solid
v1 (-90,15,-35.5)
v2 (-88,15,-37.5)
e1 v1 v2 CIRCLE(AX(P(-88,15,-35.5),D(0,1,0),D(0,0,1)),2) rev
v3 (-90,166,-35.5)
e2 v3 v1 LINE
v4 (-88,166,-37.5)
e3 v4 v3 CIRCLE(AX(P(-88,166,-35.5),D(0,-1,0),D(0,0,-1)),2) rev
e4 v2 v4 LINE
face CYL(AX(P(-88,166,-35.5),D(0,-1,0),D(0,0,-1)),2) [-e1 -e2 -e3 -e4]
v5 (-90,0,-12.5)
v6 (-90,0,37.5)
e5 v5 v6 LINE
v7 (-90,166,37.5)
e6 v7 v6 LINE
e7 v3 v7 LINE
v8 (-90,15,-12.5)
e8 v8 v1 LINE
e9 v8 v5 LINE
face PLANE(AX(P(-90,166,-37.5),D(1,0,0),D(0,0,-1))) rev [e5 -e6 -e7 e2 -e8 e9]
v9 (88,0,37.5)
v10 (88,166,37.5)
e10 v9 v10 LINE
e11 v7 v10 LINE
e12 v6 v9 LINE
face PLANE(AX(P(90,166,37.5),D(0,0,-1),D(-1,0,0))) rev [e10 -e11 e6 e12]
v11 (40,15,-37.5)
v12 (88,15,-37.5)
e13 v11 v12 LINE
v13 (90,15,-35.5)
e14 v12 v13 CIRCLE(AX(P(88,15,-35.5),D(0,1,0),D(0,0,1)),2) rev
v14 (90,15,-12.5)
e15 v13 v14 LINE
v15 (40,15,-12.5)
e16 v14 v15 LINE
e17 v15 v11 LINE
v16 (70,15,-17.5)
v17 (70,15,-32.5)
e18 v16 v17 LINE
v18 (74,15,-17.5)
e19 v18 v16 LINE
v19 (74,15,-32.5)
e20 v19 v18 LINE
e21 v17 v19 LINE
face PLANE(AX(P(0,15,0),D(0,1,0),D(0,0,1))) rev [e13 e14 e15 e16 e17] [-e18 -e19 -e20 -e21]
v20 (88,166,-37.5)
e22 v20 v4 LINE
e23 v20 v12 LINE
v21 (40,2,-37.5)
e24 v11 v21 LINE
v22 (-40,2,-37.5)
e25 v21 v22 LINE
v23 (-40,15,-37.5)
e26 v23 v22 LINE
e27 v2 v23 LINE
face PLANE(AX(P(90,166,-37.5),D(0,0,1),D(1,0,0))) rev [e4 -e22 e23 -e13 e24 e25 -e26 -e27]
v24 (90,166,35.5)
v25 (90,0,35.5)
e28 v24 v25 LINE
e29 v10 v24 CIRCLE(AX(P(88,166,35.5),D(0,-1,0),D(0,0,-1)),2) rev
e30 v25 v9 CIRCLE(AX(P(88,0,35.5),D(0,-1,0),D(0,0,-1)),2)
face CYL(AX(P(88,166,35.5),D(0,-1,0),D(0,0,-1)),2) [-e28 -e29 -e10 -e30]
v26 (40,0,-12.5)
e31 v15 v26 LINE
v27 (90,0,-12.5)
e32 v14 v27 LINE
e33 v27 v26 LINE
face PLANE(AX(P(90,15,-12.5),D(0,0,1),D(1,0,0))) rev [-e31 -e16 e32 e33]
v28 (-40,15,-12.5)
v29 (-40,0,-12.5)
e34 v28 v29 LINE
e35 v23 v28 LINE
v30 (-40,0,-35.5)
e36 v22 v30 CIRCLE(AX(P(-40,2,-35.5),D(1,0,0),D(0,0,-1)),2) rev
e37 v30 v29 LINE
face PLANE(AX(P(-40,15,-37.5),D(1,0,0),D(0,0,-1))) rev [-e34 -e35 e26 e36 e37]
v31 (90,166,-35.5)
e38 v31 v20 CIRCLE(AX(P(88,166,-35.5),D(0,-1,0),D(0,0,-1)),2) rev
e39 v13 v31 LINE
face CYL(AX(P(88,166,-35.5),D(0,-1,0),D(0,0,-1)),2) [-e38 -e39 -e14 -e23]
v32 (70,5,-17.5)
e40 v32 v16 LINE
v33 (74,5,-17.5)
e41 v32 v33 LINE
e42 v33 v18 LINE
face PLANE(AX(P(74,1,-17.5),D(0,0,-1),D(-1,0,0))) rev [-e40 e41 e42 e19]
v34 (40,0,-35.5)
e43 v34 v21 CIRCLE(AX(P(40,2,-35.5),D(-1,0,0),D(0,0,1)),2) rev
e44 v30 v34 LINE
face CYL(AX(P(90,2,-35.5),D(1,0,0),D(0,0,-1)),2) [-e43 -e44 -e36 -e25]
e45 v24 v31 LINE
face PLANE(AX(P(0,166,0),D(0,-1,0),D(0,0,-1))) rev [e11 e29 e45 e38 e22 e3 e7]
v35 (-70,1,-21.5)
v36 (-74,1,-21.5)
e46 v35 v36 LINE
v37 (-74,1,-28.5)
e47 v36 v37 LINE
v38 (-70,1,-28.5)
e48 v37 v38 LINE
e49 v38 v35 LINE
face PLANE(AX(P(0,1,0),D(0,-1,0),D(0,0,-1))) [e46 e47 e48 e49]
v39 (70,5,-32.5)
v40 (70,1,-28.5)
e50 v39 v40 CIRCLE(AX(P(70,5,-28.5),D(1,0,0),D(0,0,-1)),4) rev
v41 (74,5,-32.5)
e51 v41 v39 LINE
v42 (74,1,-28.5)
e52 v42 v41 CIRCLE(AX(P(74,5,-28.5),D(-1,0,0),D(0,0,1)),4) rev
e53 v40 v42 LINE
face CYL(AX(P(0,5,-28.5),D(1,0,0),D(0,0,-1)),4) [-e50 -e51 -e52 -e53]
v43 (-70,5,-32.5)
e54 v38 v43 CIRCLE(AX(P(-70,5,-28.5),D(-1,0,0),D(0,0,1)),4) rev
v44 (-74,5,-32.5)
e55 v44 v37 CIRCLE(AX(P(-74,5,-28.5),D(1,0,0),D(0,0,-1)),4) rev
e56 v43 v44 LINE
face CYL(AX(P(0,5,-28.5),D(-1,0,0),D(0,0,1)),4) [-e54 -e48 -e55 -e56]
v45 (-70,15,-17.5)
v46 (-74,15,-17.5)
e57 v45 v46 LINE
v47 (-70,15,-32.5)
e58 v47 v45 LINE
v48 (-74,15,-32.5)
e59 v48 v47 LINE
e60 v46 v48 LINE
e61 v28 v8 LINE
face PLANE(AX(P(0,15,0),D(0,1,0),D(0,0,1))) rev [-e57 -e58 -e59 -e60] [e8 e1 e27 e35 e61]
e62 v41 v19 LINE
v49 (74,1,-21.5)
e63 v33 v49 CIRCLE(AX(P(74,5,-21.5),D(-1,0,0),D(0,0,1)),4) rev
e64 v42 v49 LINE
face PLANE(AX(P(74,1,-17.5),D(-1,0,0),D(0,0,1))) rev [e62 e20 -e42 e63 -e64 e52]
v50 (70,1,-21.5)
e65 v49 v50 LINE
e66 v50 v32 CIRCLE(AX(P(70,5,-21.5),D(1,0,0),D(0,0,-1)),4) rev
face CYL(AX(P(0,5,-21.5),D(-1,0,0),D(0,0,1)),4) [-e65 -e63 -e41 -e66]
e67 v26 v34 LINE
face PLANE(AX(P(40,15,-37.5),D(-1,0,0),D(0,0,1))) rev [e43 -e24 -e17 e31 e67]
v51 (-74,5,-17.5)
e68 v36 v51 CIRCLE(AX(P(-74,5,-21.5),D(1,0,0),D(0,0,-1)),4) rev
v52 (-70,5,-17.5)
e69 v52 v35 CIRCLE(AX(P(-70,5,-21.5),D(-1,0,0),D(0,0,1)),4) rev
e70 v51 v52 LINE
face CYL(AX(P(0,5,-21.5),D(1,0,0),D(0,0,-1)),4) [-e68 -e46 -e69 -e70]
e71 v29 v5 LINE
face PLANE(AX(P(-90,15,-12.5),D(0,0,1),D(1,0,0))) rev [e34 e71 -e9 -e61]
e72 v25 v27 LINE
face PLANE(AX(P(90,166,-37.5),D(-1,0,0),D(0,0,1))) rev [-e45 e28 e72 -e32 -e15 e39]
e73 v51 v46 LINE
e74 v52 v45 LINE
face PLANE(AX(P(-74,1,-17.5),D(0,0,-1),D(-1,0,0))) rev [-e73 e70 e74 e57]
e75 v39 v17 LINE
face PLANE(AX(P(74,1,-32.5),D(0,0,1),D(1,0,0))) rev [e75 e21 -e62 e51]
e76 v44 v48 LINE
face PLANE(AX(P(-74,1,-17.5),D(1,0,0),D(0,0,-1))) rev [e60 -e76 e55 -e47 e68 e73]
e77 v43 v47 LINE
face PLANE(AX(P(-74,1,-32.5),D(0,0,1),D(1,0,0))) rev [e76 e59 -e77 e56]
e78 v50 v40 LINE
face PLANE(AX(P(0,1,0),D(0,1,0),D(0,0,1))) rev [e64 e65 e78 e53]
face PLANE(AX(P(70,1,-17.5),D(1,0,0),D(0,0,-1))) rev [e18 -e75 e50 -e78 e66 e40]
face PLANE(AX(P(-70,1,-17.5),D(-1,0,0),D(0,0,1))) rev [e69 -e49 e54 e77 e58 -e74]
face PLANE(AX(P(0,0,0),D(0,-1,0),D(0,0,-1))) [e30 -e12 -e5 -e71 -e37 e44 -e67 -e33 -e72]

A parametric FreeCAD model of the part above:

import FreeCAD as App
import Part
import Sketcher
Q = App.Units.Quantity


def edges_at(feature, points):
    """Names of the edges that pass closest to the given points."""
    edges = feature.Shape.Edges
    near = lambda p: min(range(len(edges)), key=lambda i: edges[i].distToShape(Part.Vertex(*p))[0])
    return sorted({f"Edge{near(p) + 1}" for p in points})

doc = App.newDocument("Part")
body = doc.addObject("PartDesign::Body", "Body")

# Sketch on XZ plane
sketch1 = body.newObject("Sketcher::SketchObject", "Sketch")
sketch1.AttachmentSupport = (doc.getObject("XZ_Plane"), [""])
sketch1.MapMode = "FlatFace"
sketch1.addGeometry(Part.LineSegment(App.Vector(-90, -38, 0), App.Vector(-90, 38, 0)), False)
sketch1.addGeometry(Part.LineSegment(App.Vector(-90, 38, 0), App.Vector(90, 38, 0)), False)
sketch1.addGeometry(Part.LineSegment(App.Vector(90, 38, 0), App.Vector(90, -38, 0)), False)
sketch1.addGeometry(Part.LineSegment(App.Vector(90, -38, 0), App.Vector(-90, -38, 0)), False)
sketch1.addConstraint(Sketcher.Constraint("Coincident", 0, 2, 1, 1))
sketch1.addConstraint(Sketcher.Constraint("Coincident", 1, 2, 2, 1))
sketch1.addConstraint(Sketcher.Constraint("Coincident", 2, 2, 3, 1))
sketch1.addConstraint(Sketcher.Constraint("Coincident", 3, 2, 0, 1))
sketch1.addConstraint(Sketcher.Constraint("Vertical", 0))
sketch1.addConstraint(Sketcher.Constraint("Horizontal", 1))
sketch1.addConstraint(Sketcher.Constraint("Vertical", 2))
sketch1.addConstraint(Sketcher.Constraint("Horizontal", 3))
sketch1.addConstraint(Sketcher.Constraint("Symmetric", 0, 2, 2, 2, -1, 1))
sketch1.addConstraint(Sketcher.Constraint("DistanceX", 1, 1, 1, 2, Q("180 mm")))
sketch1.addConstraint(Sketcher.Constraint("DistanceY", 0, 1, 0, 2, Q("75 mm")))
pad1 = body.newObject("PartDesign::Pad", "Pad")
pad1.Profile = sketch1
pad1.Length = 166
pad1.Reversed = True

# Sketch on XZ plane
sketch2 = body.newObject("Sketcher::SketchObject", "Sketch001")
sketch2.AttachmentSupport = (doc.getObject("XZ_Plane"), [""])
sketch2.MapMode = "FlatFace"
sketch2.addGeometry(Part.LineSegment(App.Vector(-90, -12, 0), App.Vector(-90, -38, 0)), False)
sketch2.addGeometry(Part.LineSegment(App.Vector(-90, -38, 0), App.Vector(-40, -38, 0)), False)
sketch2.addGeometry(Part.LineSegment(App.Vector(-40, -38, 0), App.Vector(-40, -12, 0)), False)
sketch2.addGeometry(Part.LineSegment(App.Vector(-40, -12, 0), App.Vector(-90, -12, 0)), False)
sketch2.addGeometry(Part.LineSegment(App.Vector(40, -12, 0), App.Vector(40, -38, 0)), False)
sketch2.addGeometry(Part.LineSegment(App.Vector(40, -38, 0), App.Vector(90, -38, 0)), False)
sketch2.addGeometry(Part.LineSegment(App.Vector(90, -38, 0), App.Vector(90, -12, 0)), False)
sketch2.addGeometry(Part.LineSegment(App.Vector(90, -12, 0), App.Vector(40, -12, 0)), False)
sketch2.addConstraint(Sketcher.Constraint("Coincident", 0, 2, 1, 1))
sketch2.addConstraint(Sketcher.Constraint("Coincident", 1, 2, 2, 1))
sketch2.addConstraint(Sketcher.Constraint("Coincident", 2, 2, 3, 1))
sketch2.addConstraint(Sketcher.Constraint("Coincident", 3, 2, 0, 1))
sketch2.addConstraint(Sketcher.Constraint("Coincident", 4, 2, 5, 1))
sketch2.addConstraint(Sketcher.Constraint("Coincident", 5, 2, 6, 1))
sketch2.addConstraint(Sketcher.Constraint("Coincident", 6, 2, 7, 1))
sketch2.addConstraint(Sketcher.Constraint("Coincident", 7, 2, 4, 1))
sketch2.addConstraint(Sketcher.Constraint("Vertical", 0))
sketch2.addConstraint(Sketcher.Constraint("Horizontal", 1))
sketch2.addConstraint(Sketcher.Constraint("Vertical", 2))
sketch2.addConstraint(Sketcher.Constraint("Horizontal", 3))
sketch2.addConstraint(Sketcher.Constraint("Vertical", 4))
sketch2.addConstraint(Sketcher.Constraint("Horizontal", 5))
sketch2.addConstraint(Sketcher.Constraint("Vertical", 6))
sketch2.addConstraint(Sketcher.Constraint("Horizontal", 7))
sketch2.addConstraint(Sketcher.Constraint("Symmetric", 1, 2, 4, 2, -2))
sketch2.addConstraint(Sketcher.Constraint("Symmetric", 3, 2, 6, 2, -2))
sketch2.addConstraint(Sketcher.Constraint("DistanceX", 1, 1, 1, 2, Q("50 mm")))
sketch2.addConstraint(Sketcher.Constraint("DistanceY", 0, 2, 0, 1, Q("25 mm")))
sketch2.addConstraint(Sketcher.Constraint("DistanceX", 0, 2, -1, 1, Q("90 mm")))
sketch2.addConstraint(Sketcher.Constraint("DistanceY", 0, 2, -1, 1, Q("37.5 mm")))
pocket1 = body.newObject("PartDesign::Pocket", "Pocket")
pocket1.Profile = sketch2
pocket1.Length = 15
doc.recompute()

fillet = body.newObject("PartDesign::Fillet", "Fillet")
fillet.Base = (pocket1, edges_at(pocket1, [
    (0, 0, -37.5),
    (-90, 90.5, -37.5),
    (90, 90.5, -37.5),
    (90, 83, 37.5),
]))
fillet.Radius = 2

# Sketch on XZ plane
sketch3 = body.newObject("Sketcher::SketchObject", "Sketch002")
sketch3.AttachmentSupport = (doc.getObject("XZ_Plane"), [""])
sketch3.MapMode = "FlatFace"
sketch3.AttachmentOffset = App.Placement(App.Vector(0, 0, -15), App.Rotation())
sketch3.addGeometry(Part.LineSegment(App.Vector(-74, -17.5, 0), App.Vector(-74, -32.5, 0)), False)
sketch3.addGeometry(Part.LineSegment(App.Vector(-74, -32.5, 0), App.Vector(-70, -32.5, 0)), False)
sketch3.addGeometry(Part.LineSegment(App.Vector(-70, -32.5, 0), App.Vector(-70, -17.5, 0)), False)
sketch3.addGeometry(Part.LineSegment(App.Vector(-70, -17.5, 0), App.Vector(-74, -17.5, 0)), False)
sketch3.addGeometry(Part.LineSegment(App.Vector(70, -17.5, 0), App.Vector(70, -32.5, 0)), False)
sketch3.addGeometry(Part.LineSegment(App.Vector(70, -32.5, 0), App.Vector(74, -32.5, 0)), False)
sketch3.addGeometry(Part.LineSegment(App.Vector(74, -32.5, 0), App.Vector(74, -17.5, 0)), False)
sketch3.addGeometry(Part.LineSegment(App.Vector(74, -17.5, 0), App.Vector(70, -17.5, 0)), False)
sketch3.addConstraint(Sketcher.Constraint("Coincident", 0, 2, 1, 1))
sketch3.addConstraint(Sketcher.Constraint("Coincident", 1, 2, 2, 1))
sketch3.addConstraint(Sketcher.Constraint("Coincident", 2, 2, 3, 1))
sketch3.addConstraint(Sketcher.Constraint("Coincident", 3, 2, 0, 1))
sketch3.addConstraint(Sketcher.Constraint("Coincident", 4, 2, 5, 1))
sketch3.addConstraint(Sketcher.Constraint("Coincident", 5, 2, 6, 1))
sketch3.addConstraint(Sketcher.Constraint("Coincident", 6, 2, 7, 1))
sketch3.addConstraint(Sketcher.Constraint("Coincident", 7, 2, 4, 1))
sketch3.addConstraint(Sketcher.Constraint("Vertical", 0))
sketch3.addConstraint(Sketcher.Constraint("Horizontal", 1))
sketch3.addConstraint(Sketcher.Constraint("Vertical", 2))
sketch3.addConstraint(Sketcher.Constraint("Horizontal", 3))
sketch3.addConstraint(Sketcher.Constraint("Vertical", 4))
sketch3.addConstraint(Sketcher.Constraint("Horizontal", 5))
sketch3.addConstraint(Sketcher.Constraint("Vertical", 6))
sketch3.addConstraint(Sketcher.Constraint("Horizontal", 7))
sketch3.addConstraint(Sketcher.Constraint("Symmetric", 1, 2, 4, 2, -2))
sketch3.addConstraint(Sketcher.Constraint("Symmetric", 3, 2, 6, 2, -2))
sketch3.addConstraint(Sketcher.Constraint("DistanceX", 1, 1, 1, 2, Q("4 mm")))
sketch3.addConstraint(Sketcher.Constraint("DistanceY", 0, 2, 0, 1, Q("15 mm")))
sketch3.addConstraint(Sketcher.Constraint("DistanceX", 0, 2, -1, 1, Q("74 mm")))
sketch3.addConstraint(Sketcher.Constraint("DistanceY", 0, 2, -1, 1, Q("32.5 mm")))
pad2 = body.newObject("PartDesign::Pad", "Pad001")
pad2.Profile = sketch3
pad2.Length = 14
doc.recompute()

fillet2 = body.newObject("PartDesign::Fillet", "Fillet001")
fillet2.Base = (pad2, edges_at(pad2, [
    (-72, 1, -32.5),
    (-72, 1, -17.5),
    (72, 1, -17.5),
    (72, 1, -32.5),
]))
fillet2.Radius = 4

doc.recompute()
